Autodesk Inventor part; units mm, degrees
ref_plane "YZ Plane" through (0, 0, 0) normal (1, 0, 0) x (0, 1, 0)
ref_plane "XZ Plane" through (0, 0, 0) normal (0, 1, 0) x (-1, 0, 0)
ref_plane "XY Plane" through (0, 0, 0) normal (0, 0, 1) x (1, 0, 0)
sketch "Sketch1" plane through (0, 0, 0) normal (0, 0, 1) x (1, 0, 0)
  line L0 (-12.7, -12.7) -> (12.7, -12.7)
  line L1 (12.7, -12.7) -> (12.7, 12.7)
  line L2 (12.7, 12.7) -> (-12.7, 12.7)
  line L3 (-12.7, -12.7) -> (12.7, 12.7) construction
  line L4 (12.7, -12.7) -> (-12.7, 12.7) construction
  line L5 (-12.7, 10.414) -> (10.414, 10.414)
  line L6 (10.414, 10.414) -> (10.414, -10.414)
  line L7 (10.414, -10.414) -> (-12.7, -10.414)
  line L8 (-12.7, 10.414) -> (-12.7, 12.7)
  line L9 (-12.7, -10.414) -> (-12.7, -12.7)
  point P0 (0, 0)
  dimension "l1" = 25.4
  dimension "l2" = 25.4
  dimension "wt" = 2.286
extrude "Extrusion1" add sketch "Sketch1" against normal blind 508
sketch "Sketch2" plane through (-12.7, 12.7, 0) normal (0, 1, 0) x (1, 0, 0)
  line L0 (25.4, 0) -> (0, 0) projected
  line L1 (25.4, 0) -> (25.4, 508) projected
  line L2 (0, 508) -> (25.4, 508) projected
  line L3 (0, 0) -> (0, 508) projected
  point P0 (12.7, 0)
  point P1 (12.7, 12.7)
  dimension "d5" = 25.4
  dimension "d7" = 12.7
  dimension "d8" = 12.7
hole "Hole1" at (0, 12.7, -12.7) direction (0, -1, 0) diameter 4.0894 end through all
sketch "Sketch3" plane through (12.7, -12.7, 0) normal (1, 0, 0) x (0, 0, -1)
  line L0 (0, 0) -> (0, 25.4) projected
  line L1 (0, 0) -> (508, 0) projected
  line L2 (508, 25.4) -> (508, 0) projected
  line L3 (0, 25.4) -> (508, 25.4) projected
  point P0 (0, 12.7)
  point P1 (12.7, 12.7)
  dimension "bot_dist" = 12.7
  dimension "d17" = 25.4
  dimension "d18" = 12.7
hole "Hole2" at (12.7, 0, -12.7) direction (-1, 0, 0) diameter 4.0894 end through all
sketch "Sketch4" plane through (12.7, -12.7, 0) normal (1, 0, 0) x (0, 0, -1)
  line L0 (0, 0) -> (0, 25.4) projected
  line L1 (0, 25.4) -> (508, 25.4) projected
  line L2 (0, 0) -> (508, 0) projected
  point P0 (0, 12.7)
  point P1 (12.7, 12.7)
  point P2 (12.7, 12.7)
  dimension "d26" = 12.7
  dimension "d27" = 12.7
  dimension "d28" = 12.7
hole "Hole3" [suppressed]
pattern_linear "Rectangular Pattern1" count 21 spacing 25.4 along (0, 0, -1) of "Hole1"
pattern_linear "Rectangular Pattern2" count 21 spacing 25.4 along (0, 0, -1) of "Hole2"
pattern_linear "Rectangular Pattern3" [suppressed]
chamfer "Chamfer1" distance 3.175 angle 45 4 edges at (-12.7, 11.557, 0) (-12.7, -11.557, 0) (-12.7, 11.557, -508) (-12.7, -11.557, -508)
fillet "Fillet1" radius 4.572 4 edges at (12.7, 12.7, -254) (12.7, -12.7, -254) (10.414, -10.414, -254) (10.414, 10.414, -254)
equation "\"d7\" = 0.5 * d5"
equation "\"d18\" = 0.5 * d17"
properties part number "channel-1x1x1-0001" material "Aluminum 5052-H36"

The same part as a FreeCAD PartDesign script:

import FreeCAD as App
import Part
import Sketcher

V = App.Vector
Q = App.Units.Quantity


def edges_at(feature, points):
    """Names of the edges that pass closest to the given points."""
    edges = feature.Shape.Edges
    near = lambda p: min(range(len(edges)), key=lambda i: edges[i].distToShape(Part.Vertex(*p))[0])
    return sorted({f"Edge{near(p) + 1}" for p in points})

doc = App.newDocument("Part")
body = doc.addObject("PartDesign::Body", "Body")

# Sketch on XY plane
sketch1 = body.newObject("Sketcher::SketchObject", "Sketch")
sketch1.AttachmentSupport = (doc.getObject("XY_Plane"), [""])
sketch1.MapMode = "FlatFace"
sketch1.addGeometry([
    Part.LineSegment(V(-12.7, -10.4, 0), V(-12.7, -12.7, 0)),  # 0
    Part.LineSegment(V(-12.7, -12.7, 0), V(12.7, -12.7, 0)),  # 1
    Part.LineSegment(V(12.7, -12.7, 0), V(12.7, 12.7, 0)),  # 2
    Part.LineSegment(V(12.7, 12.7, 0), V(-12.7, 12.7, 0)),  # 3
    Part.LineSegment(V(-12.7, 12.7, 0), V(-12.7, 10.4, 0)),  # 4
    Part.LineSegment(V(-12.7, 10.4, 0), V(10.4, 10.4, 0)),  # 5
    Part.LineSegment(V(10.4, 10.4, 0), V(10.4, -10.4, 0)),  # 6
    Part.LineSegment(V(10.4, -10.4, 0), V(-12.7, -10.4, 0)),  # 7
], False)
sketch1.addConstraint([
    Sketcher.Constraint("Coincident", 0, 2, 1, 1),
    Sketcher.Constraint("Coincident", 1, 2, 2, 1),
    Sketcher.Constraint("Coincident", 2, 2, 3, 1),
    Sketcher.Constraint("Coincident", 3, 2, 4, 1),
    Sketcher.Constraint("Coincident", 4, 2, 5, 1),
    Sketcher.Constraint("Coincident", 5, 2, 6, 1),
    Sketcher.Constraint("Coincident", 6, 2, 7, 1),
    Sketcher.Constraint("Coincident", 7, 2, 0, 1),
    Sketcher.Constraint("Vertical", 0),
    Sketcher.Constraint("Horizontal", 1),
    Sketcher.Constraint("Vertical", 2),
    Sketcher.Constraint("Horizontal", 3),
    Sketcher.Constraint("Vertical", 4),
    Sketcher.Constraint("Horizontal", 5),
    Sketcher.Constraint("Vertical", 6),
    Sketcher.Constraint("Horizontal", 7),
    Sketcher.Constraint("Symmetric", 0, 2, 2, 2, -1, 1),
    Sketcher.Constraint("Symmetric", 4, 2, 7, 2, -1),
    Sketcher.Constraint("Equal", 3, 2),
    Sketcher.Constraint("DistanceX", 1, 1, 1, 2, Q("1 in")),
    Sketcher.Constraint("DistanceY", 0, 2, 0, 1, Q("0.09 in")),
    Sketcher.Constraint("DistanceX", 5, 2, 2, 2, Q("0.09 in")),
])
pad1 = body.newObject("PartDesign::Pad", "Pad")
pad1.Profile = sketch1
pad1.Length = Q("20 in")
pad1.Reversed = True

# Sketch on XZ plane
sketch2 = body.newObject("Sketcher::SketchObject", "Sketch001")
sketch2.AttachmentSupport = (doc.getObject("XZ_Plane"), [""])
sketch2.MapMode = "FlatFace"
sketch2.AttachmentOffset = App.Placement(V(0, 0, -0.5 * 25.4), App.Rotation())
sketch2.addGeometry(Part.Circle(V(0, -12.7, 0), V(0, 0, 1), 2), False)
sketch2.addConstraint([
    Sketcher.Constraint("PointOnObject", 0, 3, -2),
    Sketcher.Constraint("Diameter", 0, Q("0.161 in")),
    Sketcher.Constraint("DistanceY", 0, 3, -1, 1, Q("0.5 in")),
])
doc.recompute()
hole = body.newObject("PartDesign::Hole", "Hole")
hole.Profile = sketch2
hole.ThreadType = "None"
hole.Diameter = Q("0.161 in")
hole.DepthType = "ThroughAll"
hole.Reversed = True

# Sketch on YZ plane
sketch3 = body.newObject("Sketcher::SketchObject", "Sketch002")
sketch3.AttachmentSupport = (doc.getObject("YZ_Plane"), [""])
sketch3.MapMode = "FlatFace"
sketch3.AttachmentOffset = App.Placement(V(0, 0, 0.5 * 25.4), App.Rotation())
sketch3.addGeometry(Part.Circle(V(0, -12.7, 0), V(0, 0, 1), 2), False)
sketch3.addConstraint([
    Sketcher.Constraint("PointOnObject", 0, 3, -2),
    Sketcher.Constraint("Diameter", 0, Q("0.161 in")),
    Sketcher.Constraint("DistanceY", 0, 3, -1, 1, Q("0.5 in")),
])
doc.recompute()
hole2 = body.newObject("PartDesign::Hole", "Hole001")
hole2.Profile = sketch3
hole2.ThreadType = "None"
hole2.Diameter = Q("0.161 in")
hole2.DepthType = "ThroughAll"
doc.recompute()

linearpattern = body.newObject("PartDesign::LinearPattern", "LinearPattern")
linearpattern.Originals = [hole]
linearpattern.Direction = (doc.getObject("Z_Axis"), [""])
linearpattern.Mode = "offset"
linearpattern.Offset = Q("1 in")
linearpattern.Occurrences = 21
linearpattern.Reversed = True
body.Tip = linearpattern
doc.recompute()

linearpattern2 = body.newObject("PartDesign::LinearPattern", "LinearPattern001")
linearpattern2.Originals = [hole2]
linearpattern2.Direction = (doc.getObject("Z_Axis"), [""])
linearpattern2.Mode = "offset"
linearpattern2.Offset = Q("1 in")
linearpattern2.Occurrences = 21
linearpattern2.Reversed = True
body.Tip = linearpattern2
doc.recompute()

chamfer = body.newObject("PartDesign::Chamfer", "Chamfer")
chamfer.Base = (linearpattern2, edges_at(linearpattern2, [
    (-12.7, 11.557, 0),
    (-12.7, -11.557, 0),
    (-12.7, 11.557, -508),
    (-12.7, -11.557, -508),
]))
chamfer.Size = Q("0.125 in")
doc.recompute()

fillet = body.newObject("PartDesign::Fillet", "Fillet")
fillet.Base = (chamfer, edges_at(chamfer, [
    (12.7, 12.7, -254),
    (12.7, -12.7, -254),
    (10.414, -10.414, -254),
    (10.414, 10.414, -254),
]))
fillet.Radius = Q("0.18 in")

doc.recompute()
